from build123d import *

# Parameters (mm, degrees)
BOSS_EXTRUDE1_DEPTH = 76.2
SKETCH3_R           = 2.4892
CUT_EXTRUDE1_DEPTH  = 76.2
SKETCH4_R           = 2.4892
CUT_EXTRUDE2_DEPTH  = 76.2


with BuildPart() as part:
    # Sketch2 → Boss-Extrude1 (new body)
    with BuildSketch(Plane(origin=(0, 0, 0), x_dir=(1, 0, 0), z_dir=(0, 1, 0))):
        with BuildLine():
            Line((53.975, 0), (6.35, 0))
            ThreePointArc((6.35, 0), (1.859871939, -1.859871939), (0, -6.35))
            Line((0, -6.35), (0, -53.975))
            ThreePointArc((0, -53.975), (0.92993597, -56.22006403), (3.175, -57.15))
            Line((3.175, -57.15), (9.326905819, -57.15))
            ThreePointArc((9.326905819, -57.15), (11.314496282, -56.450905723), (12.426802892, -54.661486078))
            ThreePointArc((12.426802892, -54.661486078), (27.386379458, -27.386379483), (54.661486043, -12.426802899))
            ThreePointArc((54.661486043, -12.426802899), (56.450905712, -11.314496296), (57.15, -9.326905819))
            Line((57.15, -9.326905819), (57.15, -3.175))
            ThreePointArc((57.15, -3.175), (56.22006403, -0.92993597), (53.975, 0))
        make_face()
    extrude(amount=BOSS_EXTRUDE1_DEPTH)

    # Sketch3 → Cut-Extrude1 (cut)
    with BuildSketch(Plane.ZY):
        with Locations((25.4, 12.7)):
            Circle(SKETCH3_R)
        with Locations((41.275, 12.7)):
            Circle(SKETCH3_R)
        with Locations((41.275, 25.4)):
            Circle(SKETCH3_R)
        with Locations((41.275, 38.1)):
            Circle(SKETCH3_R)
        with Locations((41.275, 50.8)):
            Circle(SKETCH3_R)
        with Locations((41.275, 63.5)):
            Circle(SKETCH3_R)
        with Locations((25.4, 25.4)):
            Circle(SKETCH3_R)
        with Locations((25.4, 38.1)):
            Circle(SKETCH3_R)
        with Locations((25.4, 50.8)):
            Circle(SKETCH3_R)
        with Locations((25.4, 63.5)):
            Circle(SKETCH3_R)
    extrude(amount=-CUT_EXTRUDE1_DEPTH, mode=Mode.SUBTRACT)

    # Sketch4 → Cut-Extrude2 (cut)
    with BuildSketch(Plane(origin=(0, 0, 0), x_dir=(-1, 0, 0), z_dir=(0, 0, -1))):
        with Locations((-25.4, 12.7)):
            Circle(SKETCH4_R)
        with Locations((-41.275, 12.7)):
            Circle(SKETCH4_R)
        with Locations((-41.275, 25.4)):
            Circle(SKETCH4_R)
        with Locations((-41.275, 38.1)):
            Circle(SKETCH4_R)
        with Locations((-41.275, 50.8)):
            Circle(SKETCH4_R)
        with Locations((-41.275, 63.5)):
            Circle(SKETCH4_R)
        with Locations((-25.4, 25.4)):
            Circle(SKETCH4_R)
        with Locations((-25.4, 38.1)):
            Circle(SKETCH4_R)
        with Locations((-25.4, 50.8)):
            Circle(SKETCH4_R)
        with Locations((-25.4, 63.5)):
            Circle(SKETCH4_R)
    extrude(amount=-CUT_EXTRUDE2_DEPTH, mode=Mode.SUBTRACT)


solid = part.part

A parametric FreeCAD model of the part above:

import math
import FreeCAD as App
import Part
import Sketcher
from FreeCAD import Vector
Q = App.Units.Quantity

doc = App.newDocument("Part")
body = doc.addObject("PartDesign::Body", "Body")

# Sketch on XZ plane
sketch1 = body.newObject("Sketcher::SketchObject", "Sketch")
sketch1.AttachmentSupport = (doc.getObject("XZ_Plane"), [""])
sketch1.MapMode = "FlatFace"
sketch1.addGeometry(Part.LineSegment(Vector(54, 0, 0), Vector(6.3, 0, 0)), False)
sketch1.addGeometry(Part.ArcOfCircle(Part.Circle(Vector(6.3, 6.3, 0), Vector(0, 0, 1), 6.3), math.radians(180), math.radians(270)), False)
sketch1.addGeometry(Part.LineSegment(Vector(0, 6.3, 0), Vector(0, 54, 0)), False)
sketch1.addGeometry(Part.ArcOfCircle(Part.Circle(Vector(3.2, 54, 0), Vector(0, 0, 1), 3.2), math.radians(90), math.radians(180)), False)
sketch1.addGeometry(Part.LineSegment(Vector(3.2, 57.1, 0), Vector(9.3, 57.1, 0)), False)
sketch1.addGeometry(Part.ArcOfCircle(Part.Circle(Vector(9.3, 54, 0), Vector(0, 0, 1), 3.2), math.radians(12), math.radians(90)), False)
sketch1.addGeometry(Part.ArcOfCircle(Part.Circle(Vector(66.7, 66.7, 0), Vector(0, 0, 1), 55.6), math.radians(-168), math.radians(-102)), False)
sketch1.addGeometry(Part.ArcOfCircle(Part.Circle(Vector(54, 9.3, 0), Vector(0, 0, 1), 3.2), math.radians(0), math.radians(78)), False)
sketch1.addGeometry(Part.LineSegment(Vector(57.1, 9.3, 0), Vector(57.1, 3.2, 0)), False)
sketch1.addGeometry(Part.ArcOfCircle(Part.Circle(Vector(54, 3.2, 0), Vector(0, 0, 1), 3.2), math.radians(-90), math.radians(0)), False)
sketch1.addConstraint(Sketcher.Constraint("Tangent", 0, 2, 1, 2))
sketch1.addConstraint(Sketcher.Constraint("Tangent", 1, 1, 2, 1))
sketch1.addConstraint(Sketcher.Constraint("Tangent", 2, 2, 3, 2))
sketch1.addConstraint(Sketcher.Constraint("Tangent", 3, 1, 4, 1))
sketch1.addConstraint(Sketcher.Constraint("Tangent", 4, 2, 5, 2))
sketch1.addConstraint(Sketcher.Constraint("Tangent", 5, 1, 6, 1))
sketch1.addConstraint(Sketcher.Constraint("Tangent", 6, 2, 7, 2))
sketch1.addConstraint(Sketcher.Constraint("Tangent", 7, 1, 8, 1))
sketch1.addConstraint(Sketcher.Constraint("Tangent", 8, 2, 9, 2))
sketch1.addConstraint(Sketcher.Constraint("Tangent", 9, 1, 0, 1))
sketch1.addConstraint(Sketcher.Constraint("Horizontal", 0))
sketch1.addConstraint(Sketcher.Constraint("Vertical", 2))
sketch1.addConstraint(Sketcher.Constraint("Horizontal", 4))
sketch1.addConstraint(Sketcher.Constraint("Vertical", 8))
sketch1.addConstraint(Sketcher.Constraint("Equal", 3, 5))
sketch1.addConstraint(Sketcher.Constraint("Equal", 5, 7))
sketch1.addConstraint(Sketcher.Constraint("Equal", 7, 9))
sketch1.addConstraint(Sketcher.Constraint("PointOnObject", 0, 2, -1))
sketch1.addConstraint(Sketcher.Constraint("PointOnObject", 1, 1, -2))
sketch1.addConstraint(Sketcher.Constraint("Equal", 0, 2))
sketch1.addConstraint(Sketcher.Constraint("Equal", 4, 8))
sketch1.addConstraint(Sketcher.Constraint("Radius", 1, Q("0.25 in")))
sketch1.addConstraint(Sketcher.Constraint("Radius", 3, Q("0.125 in")))
sketch1.addConstraint(Sketcher.Constraint("Radius", 6, Q("2.1875 in")))
sketch1.addConstraint(Sketcher.Constraint("DistanceX", 3, 3, 7, 3, Q("2 in")))
sketch1.addConstraint(Sketcher.Constraint("DistanceY", 5, 3, 6, 3, Q("0.5 in")))
pad1 = body.newObject("PartDesign::Pad", "Pad")
pad1.Profile = sketch1
pad1.Length = Q("3 in")
pad1.Reversed = True

# Sketch on YZ plane
sketch2 = body.newObject("Sketcher::SketchObject", "Sketch001")
sketch2.AttachmentSupport = (doc.getObject("YZ_Plane"), [""])
sketch2.MapMode = "FlatFace"
sketch2.addGeometry(Part.Circle(Vector(12.7, 25.4, 0), Vector(0, 0, 1), 2.5), False)
sketch2.addGeometry(Part.Circle(Vector(12.7, 41.3, 0), Vector(0, 0, 1), 2.5), False)
sketch2.addGeometry(Part.Circle(Vector(25.4, 41.3, 0), Vector(0, 0, 1), 2.5), False)
sketch2.addGeometry(Part.Circle(Vector(38.1, 41.3, 0), Vector(0, 0, 1), 2.5), False)
sketch2.addGeometry(Part.Circle(Vector(50.8, 41.3, 0), Vector(0, 0, 1), 2.5), False)
sketch2.addGeometry(Part.Circle(Vector(63.5, 41.3, 0), Vector(0, 0, 1), 2.5), False)
sketch2.addGeometry(Part.Circle(Vector(25.4, 25.4, 0), Vector(0, 0, 1), 2.5), False)
sketch2.addGeometry(Part.Circle(Vector(38.1, 25.4, 0), Vector(0, 0, 1), 2.5), False)
sketch2.addGeometry(Part.Circle(Vector(50.8, 25.4, 0), Vector(0, 0, 1), 2.5), False)
sketch2.addGeometry(Part.Circle(Vector(63.5, 25.4, 0), Vector(0, 0, 1), 2.5), False)
sketch2.addConstraint(Sketcher.Constraint("Equal", 0, 1))
sketch2.addConstraint(Sketcher.Constraint("Equal", 1, 2))
sketch2.addConstraint(Sketcher.Constraint("Equal", 2, 3))
sketch2.addConstraint(Sketcher.Constraint("Equal", 3, 4))
sketch2.addConstraint(Sketcher.Constraint("Equal", 4, 5))
sketch2.addConstraint(Sketcher.Constraint("Equal", 5, 6))
sketch2.addConstraint(Sketcher.Constraint("Equal", 6, 7))
sketch2.addConstraint(Sketcher.Constraint("Equal", 7, 8))
sketch2.addConstraint(Sketcher.Constraint("Equal", 8, 9))
sketch2.addConstraint(Sketcher.Constraint("Horizontal", 1, 3, 2, 3))
sketch2.addConstraint(Sketcher.Constraint("Horizontal", 2, 3, 3, 3))
sketch2.addConstraint(Sketcher.Constraint("Horizontal", 3, 3, 4, 3))
sketch2.addConstraint(Sketcher.Constraint("Horizontal", 4, 3, 5, 3))
sketch2.addConstraint(Sketcher.Constraint("Horizontal", 0, 3, 6, 3))
sketch2.addConstraint(Sketcher.Constraint("Horizontal", 6, 3, 7, 3))
sketch2.addConstraint(Sketcher.Constraint("Horizontal", 7, 3, 8, 3))
sketch2.addConstraint(Sketcher.Constraint("Horizontal", 8, 3, 9, 3))
sketch2.addConstraint(Sketcher.Constraint("Vertical", 0, 3, 1, 3))
sketch2.addConstraint(Sketcher.Constraint("Vertical", 2, 3, 6, 3))
sketch2.addConstraint(Sketcher.Constraint("Vertical", 3, 3, 7, 3))
sketch2.addConstraint(Sketcher.Constraint("Vertical", 4, 3, 8, 3))
sketch2.addConstraint(Sketcher.Constraint("Vertical", 5, 3, 9, 3))
sketch2.addConstraint(Sketcher.Constraint("Diameter", 0, Q("0.196 in")))
sketch2.addConstraint(Sketcher.Constraint("DistanceY", -1, 1, 0, 3, Q("1 in")))
sketch2.addConstraint(Sketcher.Constraint("DistanceX", -1, 1, 2, 3, Q("1 in")))
sketch2.addConstraint(Sketcher.Constraint("DistanceX", -1, 1, 4, 3, Q("2 in")))
sketch2.addConstraint(Sketcher.Constraint("DistanceX", 1, 3, 3, 3, Q("1 in")))
sketch2.addConstraint(Sketcher.Constraint("DistanceX", 3, 3, 5, 3, Q("1 in")))
sketch2.addConstraint(Sketcher.Constraint("DistanceX", -1, 1, 0, 3, Q("0.5 in")))
sketch2.addConstraint(Sketcher.Constraint("DistanceY", -1, 1, 1, 3, Q("1.625 in")))
pocket1 = body.newObject("PartDesign::Pocket", "Pocket")
pocket1.Profile = sketch2
pocket1.Length = Q("3 in")
pocket1.Reversed = True

# Sketch on XY plane
sketch3 = body.newObject("Sketcher::SketchObject", "Sketch002")
sketch3.AttachmentSupport = (doc.getObject("XY_Plane"), [""])
sketch3.MapMode = "FlatFace"
sketch3.addGeometry(Part.Circle(Vector(25.4, 12.7, 0), Vector(0, 0, 1), 2.5), False)
sketch3.addGeometry(Part.Circle(Vector(41.3, 12.7, 0), Vector(0, 0, 1), 2.5), False)
sketch3.addGeometry(Part.Circle(Vector(41.3, 25.4, 0), Vector(0, 0, 1), 2.5), False)
sketch3.addGeometry(Part.Circle(Vector(41.3, 38.1, 0), Vector(0, 0, 1), 2.5), False)
sketch3.addGeometry(Part.Circle(Vector(41.3, 50.8, 0), Vector(0, 0, 1), 2.5), False)
sketch3.addGeometry(Part.Circle(Vector(41.3, 63.5, 0), Vector(0, 0, 1), 2.5), False)
sketch3.addGeometry(Part.Circle(Vector(25.4, 25.4, 0), Vector(0, 0, 1), 2.5), False)
sketch3.addGeometry(Part.Circle(Vector(25.4, 38.1, 0), Vector(0, 0, 1), 2.5), False)
sketch3.addGeometry(Part.Circle(Vector(25.4, 50.8, 0), Vector(0, 0, 1), 2.5), False)
sketch3.addGeometry(Part.Circle(Vector(25.4, 63.5, 0), Vector(0, 0, 1), 2.5), False)
sketch3.addConstraint(Sketcher.Constraint("Equal", 0, 1))
sketch3.addConstraint(Sketcher.Constraint("Equal", 1, 2))
sketch3.addConstraint(Sketcher.Constraint("Equal", 2, 3))
sketch3.addConstraint(Sketcher.Constraint("Equal", 3, 4))
sketch3.addConstraint(Sketcher.Constraint("Equal", 4, 5))
sketch3.addConstraint(Sketcher.Constraint("Equal", 5, 6))
sketch3.addConstraint(Sketcher.Constraint("Equal", 6, 7))
sketch3.addConstraint(Sketcher.Constraint("Equal", 7, 8))
sketch3.addConstraint(Sketcher.Constraint("Equal", 8, 9))
sketch3.addConstraint(Sketcher.Constraint("Horizontal", 0, 3, 1, 3))
sketch3.addConstraint(Sketcher.Constraint("Horizontal", 2, 3, 6, 3))
sketch3.addConstraint(Sketcher.Constraint("Horizontal", 3, 3, 7, 3))
sketch3.addConstraint(Sketcher.Constraint("Horizontal", 4, 3, 8, 3))
sketch3.addConstraint(Sketcher.Constraint("Horizontal", 5, 3, 9, 3))
sketch3.addConstraint(Sketcher.Constraint("Vertical", 1, 3, 2, 3))
sketch3.addConstraint(Sketcher.Constraint("Vertical", 2, 3, 3, 3))
sketch3.addConstraint(Sketcher.Constraint("Vertical", 3, 3, 4, 3))
sketch3.addConstraint(Sketcher.Constraint("Vertical", 4, 3, 5, 3))
sketch3.addConstraint(Sketcher.Constraint("Vertical", 0, 3, 6, 3))
sketch3.addConstraint(Sketcher.Constraint("Vertical", 6, 3, 7, 3))
sketch3.addConstraint(Sketcher.Constraint("Vertical", 7, 3, 8, 3))
sketch3.addConstraint(Sketcher.Constraint("Vertical", 8, 3, 9, 3))
sketch3.addConstraint(Sketcher.Constraint("Diameter", 0, Q("0.196 in")))
sketch3.addConstraint(Sketcher.Constraint("DistanceX", -1, 1, 0, 3, Q("1 in")))
sketch3.addConstraint(Sketcher.Constraint("DistanceY", -1, 1, 2, 3, Q("1 in")))
sketch3.addConstraint(Sketcher.Constraint("DistanceY", -1, 1, 4, 3, Q("2 in")))
sketch3.addConstraint(Sketcher.Constraint("DistanceY", 1, 3, 3, 3, Q("1 in")))
sketch3.addConstraint(Sketcher.Constraint("DistanceY", 3, 3, 5, 3, Q("1 in")))
sketch3.addConstraint(Sketcher.Constraint("DistanceY", -1, 1, 0, 3, Q("0.5 in")))
sketch3.addConstraint(Sketcher.Constraint("DistanceX", -1, 1, 1, 3, Q("1.625 in")))
pocket2 = body.newObject("PartDesign::Pocket", "Pocket001")
pocket2.Profile = sketch3
pocket2.Length = Q("3 in")
pocket2.Reversed = True

doc.recompute()
